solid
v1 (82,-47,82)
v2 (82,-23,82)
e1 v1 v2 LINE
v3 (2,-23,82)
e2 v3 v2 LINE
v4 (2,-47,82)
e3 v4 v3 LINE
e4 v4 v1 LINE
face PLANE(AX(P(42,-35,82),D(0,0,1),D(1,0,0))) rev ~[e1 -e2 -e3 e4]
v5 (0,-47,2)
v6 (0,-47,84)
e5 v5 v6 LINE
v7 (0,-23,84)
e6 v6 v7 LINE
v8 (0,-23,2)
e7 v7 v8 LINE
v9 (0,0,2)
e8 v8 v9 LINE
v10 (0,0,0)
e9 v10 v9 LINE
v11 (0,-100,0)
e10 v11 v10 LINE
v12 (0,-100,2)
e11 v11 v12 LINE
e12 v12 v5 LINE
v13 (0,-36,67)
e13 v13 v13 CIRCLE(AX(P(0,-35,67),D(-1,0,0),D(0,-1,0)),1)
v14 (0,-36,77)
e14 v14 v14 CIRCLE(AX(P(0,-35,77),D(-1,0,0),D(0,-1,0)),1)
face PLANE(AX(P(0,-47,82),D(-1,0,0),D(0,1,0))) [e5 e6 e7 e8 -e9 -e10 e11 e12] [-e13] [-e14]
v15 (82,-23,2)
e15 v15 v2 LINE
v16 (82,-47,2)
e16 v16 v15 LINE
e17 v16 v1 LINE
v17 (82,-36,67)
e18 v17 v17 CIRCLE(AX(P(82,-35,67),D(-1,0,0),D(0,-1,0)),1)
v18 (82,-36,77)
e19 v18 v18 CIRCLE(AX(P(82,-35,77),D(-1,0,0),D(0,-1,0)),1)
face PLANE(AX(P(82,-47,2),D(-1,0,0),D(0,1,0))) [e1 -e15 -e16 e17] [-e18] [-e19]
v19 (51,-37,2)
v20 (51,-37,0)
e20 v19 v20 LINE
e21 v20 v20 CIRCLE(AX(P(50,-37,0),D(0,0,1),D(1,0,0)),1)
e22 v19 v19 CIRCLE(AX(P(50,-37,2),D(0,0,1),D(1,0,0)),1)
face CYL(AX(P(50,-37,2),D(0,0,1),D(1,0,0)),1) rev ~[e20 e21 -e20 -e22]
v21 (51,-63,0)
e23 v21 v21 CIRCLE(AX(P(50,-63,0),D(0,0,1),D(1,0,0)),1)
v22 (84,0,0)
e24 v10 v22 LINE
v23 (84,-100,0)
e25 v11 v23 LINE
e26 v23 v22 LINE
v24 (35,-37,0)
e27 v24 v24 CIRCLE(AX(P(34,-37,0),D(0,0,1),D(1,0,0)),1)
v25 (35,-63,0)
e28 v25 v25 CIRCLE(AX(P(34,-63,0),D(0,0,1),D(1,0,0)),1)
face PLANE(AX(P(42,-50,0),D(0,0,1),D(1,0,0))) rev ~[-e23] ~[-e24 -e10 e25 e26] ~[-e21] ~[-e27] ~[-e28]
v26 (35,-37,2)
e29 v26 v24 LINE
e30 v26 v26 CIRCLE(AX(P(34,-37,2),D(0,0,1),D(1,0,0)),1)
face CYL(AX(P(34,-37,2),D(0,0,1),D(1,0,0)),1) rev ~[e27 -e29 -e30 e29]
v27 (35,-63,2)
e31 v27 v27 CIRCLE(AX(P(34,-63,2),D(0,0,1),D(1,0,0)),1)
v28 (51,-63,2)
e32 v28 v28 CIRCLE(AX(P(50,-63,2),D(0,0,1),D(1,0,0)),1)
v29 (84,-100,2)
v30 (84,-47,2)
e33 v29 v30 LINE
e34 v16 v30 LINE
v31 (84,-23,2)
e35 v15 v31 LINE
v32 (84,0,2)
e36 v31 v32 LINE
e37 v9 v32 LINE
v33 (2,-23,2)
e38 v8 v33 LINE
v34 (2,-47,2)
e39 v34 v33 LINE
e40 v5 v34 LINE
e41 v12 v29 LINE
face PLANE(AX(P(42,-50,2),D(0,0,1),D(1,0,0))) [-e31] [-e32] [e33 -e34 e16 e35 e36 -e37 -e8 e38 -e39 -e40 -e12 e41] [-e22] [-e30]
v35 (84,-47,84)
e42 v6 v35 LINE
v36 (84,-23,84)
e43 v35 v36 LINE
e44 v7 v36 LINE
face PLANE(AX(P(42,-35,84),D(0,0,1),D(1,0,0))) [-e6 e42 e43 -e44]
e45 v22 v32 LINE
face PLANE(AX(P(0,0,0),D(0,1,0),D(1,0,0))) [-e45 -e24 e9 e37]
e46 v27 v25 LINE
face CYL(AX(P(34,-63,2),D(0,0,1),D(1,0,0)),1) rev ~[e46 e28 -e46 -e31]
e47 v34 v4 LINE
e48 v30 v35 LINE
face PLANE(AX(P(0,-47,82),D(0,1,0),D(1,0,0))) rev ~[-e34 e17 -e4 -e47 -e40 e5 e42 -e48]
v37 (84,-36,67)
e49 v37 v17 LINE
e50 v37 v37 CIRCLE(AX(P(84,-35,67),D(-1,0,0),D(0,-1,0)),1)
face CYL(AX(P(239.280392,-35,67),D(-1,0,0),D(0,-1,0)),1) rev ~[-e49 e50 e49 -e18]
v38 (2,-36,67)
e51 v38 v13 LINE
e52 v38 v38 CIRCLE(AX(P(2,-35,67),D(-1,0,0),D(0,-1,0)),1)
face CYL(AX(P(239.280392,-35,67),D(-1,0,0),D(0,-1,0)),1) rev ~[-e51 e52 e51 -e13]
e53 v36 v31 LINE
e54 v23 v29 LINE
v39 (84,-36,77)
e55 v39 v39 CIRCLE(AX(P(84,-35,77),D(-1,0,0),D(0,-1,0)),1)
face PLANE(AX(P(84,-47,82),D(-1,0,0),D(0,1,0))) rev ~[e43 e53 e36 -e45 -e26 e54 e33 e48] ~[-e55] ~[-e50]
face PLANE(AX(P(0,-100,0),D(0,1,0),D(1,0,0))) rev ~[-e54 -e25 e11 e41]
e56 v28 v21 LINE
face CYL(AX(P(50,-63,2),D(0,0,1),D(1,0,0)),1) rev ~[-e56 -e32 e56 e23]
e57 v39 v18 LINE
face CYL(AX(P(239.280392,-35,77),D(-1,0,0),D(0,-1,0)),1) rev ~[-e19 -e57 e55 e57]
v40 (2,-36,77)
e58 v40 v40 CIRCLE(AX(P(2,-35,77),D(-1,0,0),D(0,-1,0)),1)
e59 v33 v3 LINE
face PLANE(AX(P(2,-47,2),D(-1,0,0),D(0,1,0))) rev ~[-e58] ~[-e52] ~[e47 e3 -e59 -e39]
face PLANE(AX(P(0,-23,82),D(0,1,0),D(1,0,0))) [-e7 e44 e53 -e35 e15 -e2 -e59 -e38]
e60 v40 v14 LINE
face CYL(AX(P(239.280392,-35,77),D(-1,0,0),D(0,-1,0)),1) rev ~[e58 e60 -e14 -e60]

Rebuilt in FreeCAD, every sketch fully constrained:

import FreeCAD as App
import Part
import Sketcher

V = App.Vector

doc = App.newDocument("Part")
body = doc.addObject("PartDesign::Body", "Body")

sketch1 = body.newObject("Sketcher::SketchObject", "Sketch")
sketch1.AttachmentSupport = (doc.getObject("XY_Plane"), [""])
sketch1.MapMode = "FlatFace"
sketch1.addGeometry([
    Part.LineSegment(V(0, 0, 0), V(0, -100, 0)),
    Part.LineSegment(V(0, -100, 0), V(84, -100, 0)),
    Part.LineSegment(V(84, -100, 0), V(84, 0, 0)),
    Part.LineSegment(V(84, 0, 0), V(0, 0, 0)),
], False)
sketch1.addConstraint([
    Sketcher.Constraint("Coincident", 0, 2, 1, 1),
    Sketcher.Constraint("Coincident", 1, 2, 2, 1),
    Sketcher.Constraint("Coincident", 2, 2, 3, 1),
    Sketcher.Constraint("Coincident", 3, 2, 0, 1),
    Sketcher.Constraint("Vertical", 0),
    Sketcher.Constraint("Horizontal", 1),
    Sketcher.Constraint("Vertical", 2),
    Sketcher.Constraint("Horizontal", 3),
    Sketcher.Constraint("Coincident", 3, 2, -1, 1),
    Sketcher.Constraint("DistanceX", 1, 1, 1, 2, 84.0),
    Sketcher.Constraint("DistanceY", 0, 2, 0, 1, 100.0),
])
pad1 = body.newObject("PartDesign::Pad", "Pad")
pad1.Profile = sketch1
pad1.Length = 2

sketch2 = body.newObject("Sketcher::SketchObject", "Sketch001")
sketch2.AttachmentSupport = (doc.getObject("XY_Plane"), [""])
sketch2.MapMode = "FlatFace"
sketch2.AttachmentOffset = App.Placement(V(0, 0, 2), App.Rotation())
sketch2.addGeometry([
    Part.LineSegment(V(0, -23, 0), V(0, -47, 0)),
    Part.LineSegment(V(0, -47, 0), V(2, -47, 0)),
    Part.LineSegment(V(2, -47, 0), V(2, -23, 0)),
    Part.LineSegment(V(2, -23, 0), V(0, -23, 0)),
    Part.LineSegment(V(82, -23, 0), V(82, -47, 0)),
    Part.LineSegment(V(82, -47, 0), V(84, -47, 0)),
    Part.LineSegment(V(84, -47, 0), V(84, -23, 0)),
    Part.LineSegment(V(84, -23, 0), V(82, -23, 0)),
], False)
sketch2.addConstraint([
    Sketcher.Constraint("Coincident", 0, 2, 1, 1),
    Sketcher.Constraint("Coincident", 1, 2, 2, 1),
    Sketcher.Constraint("Coincident", 2, 2, 3, 1),
    Sketcher.Constraint("Coincident", 3, 2, 0, 1),
    Sketcher.Constraint("Coincident", 4, 2, 5, 1),
    Sketcher.Constraint("Coincident", 5, 2, 6, 1),
    Sketcher.Constraint("Coincident", 6, 2, 7, 1),
    Sketcher.Constraint("Coincident", 7, 2, 4, 1),
    Sketcher.Constraint("Vertical", 0),
    Sketcher.Constraint("Horizontal", 1),
    Sketcher.Constraint("Vertical", 2),
    Sketcher.Constraint("Horizontal", 3),
    Sketcher.Constraint("Vertical", 4),
    Sketcher.Constraint("Horizontal", 5),
    Sketcher.Constraint("Vertical", 6),
    Sketcher.Constraint("Horizontal", 7),
    Sketcher.Constraint("PointOnObject", 0, 2, -2),
    Sketcher.Constraint("Horizontal", 1, 2, 4, 2),
    Sketcher.Constraint("Horizontal", 3, 2, 6, 2),
    Sketcher.Constraint("Equal", 3, 5),
    Sketcher.Constraint("DistanceX", 1, 1, 1, 2, 2.0),
    Sketcher.Constraint("DistanceY", 0, 2, 0, 1, 24.0),
    Sketcher.Constraint("DistanceY", 0, 2, -1, 1, 47.0),
    Sketcher.Constraint("DistanceX", -1, 1, 4, 2, 82.0),
])
pad2 = body.newObject("PartDesign::Pad", "Pad001")
pad2.Profile = sketch2
pad2.Length = 80

sketch3 = body.newObject("Sketcher::SketchObject", "Sketch002")
sketch3.AttachmentSupport = (doc.getObject("XY_Plane"), [""])
sketch3.MapMode = "FlatFace"
sketch3.AttachmentOffset = App.Placement(V(0, 0, 82), App.Rotation())
sketch3.addGeometry([
    Part.LineSegment(V(0, -23, 0), V(0, -47, 0)),
    Part.LineSegment(V(0, -47, 0), V(84, -47, 0)),
    Part.LineSegment(V(84, -47, 0), V(84, -23, 0)),
    Part.LineSegment(V(84, -23, 0), V(0, -23, 0)),
], False)
sketch3.addConstraint([
    Sketcher.Constraint("Coincident", 0, 2, 1, 1),
    Sketcher.Constraint("Coincident", 1, 2, 2, 1),
    Sketcher.Constraint("Coincident", 2, 2, 3, 1),
    Sketcher.Constraint("Coincident", 3, 2, 0, 1),
    Sketcher.Constraint("Vertical", 0),
    Sketcher.Constraint("Horizontal", 1),
    Sketcher.Constraint("Vertical", 2),
    Sketcher.Constraint("Horizontal", 3),
    Sketcher.Constraint("PointOnObject", 0, 2, -2),
    Sketcher.Constraint("DistanceX", 1, 1, 1, 2, 84.0),
    Sketcher.Constraint("DistanceY", 0, 2, 0, 1, 24.0),
    Sketcher.Constraint("DistanceY", 0, 2, -1, 1, 47.0),
])
pad3 = body.newObject("PartDesign::Pad", "Pad002")
pad3.Profile = sketch3
pad3.Length = 2

sketch4 = body.newObject("Sketcher::SketchObject", "Sketch003")
sketch4.AttachmentSupport = (doc.getObject("XY_Plane"), [""])
sketch4.MapMode = "FlatFace"
sketch4.AttachmentOffset = App.Placement(V(0, 0, 2), App.Rotation())
sketch4.addGeometry([
    Part.Circle(V(34, -63, 0), V(0, 0, 1), 1),
    Part.Circle(V(34, -37, 0), V(0, 0, 1), 1),
    Part.Circle(V(50, -37, 0), V(0, 0, 1), 1),
    Part.Circle(V(50, -63, 0), V(0, 0, 1), 1),
], False)
sketch4.addConstraint([
    Sketcher.Constraint("Equal", 0, 1),
    Sketcher.Constraint("Equal", 1, 2),
    Sketcher.Constraint("Equal", 2, 3),
    Sketcher.Constraint("Horizontal", 1, 3, 2, 3),
    Sketcher.Constraint("Horizontal", 0, 3, 3, 3),
    Sketcher.Constraint("Vertical", 0, 3, 1, 3),
    Sketcher.Constraint("Vertical", 2, 3, 3, 3),
    Sketcher.Constraint("Diameter", 0, 2.0),
    Sketcher.Constraint("DistanceX", -1, 1, 0, 3, 34.0),
    Sketcher.Constraint("DistanceY", 0, 3, -1, 1, 63.0),
    Sketcher.Constraint("DistanceY", 1, 3, -1, 1, 37.0),
    Sketcher.Constraint("DistanceX", -1, 1, 2, 3, 50.0),
])
pocket1 = body.newObject("PartDesign::Pocket", "Pocket")
pocket1.Profile = sketch4
pocket1.Type = "ThroughAll"

sketch5 = body.newObject("Sketcher::SketchObject", "Sketch004")
sketch5.AttachmentSupport = (doc.getObject("YZ_Plane"), [""])
sketch5.MapMode = "FlatFace"
sketch5.AttachmentOffset = App.Placement(V(0, 0, 84), App.Rotation())
sketch5.addGeometry([
    Part.Circle(V(-35, 77, 0), V(0, 0, 1), 1),
    Part.Circle(V(-35, 67, 0), V(0, 0, 1), 1),
], False)
sketch5.addConstraint([
    Sketcher.Constraint("Equal", 0, 1),
    Sketcher.Constraint("Vertical", 0, 3, 1, 3),
    Sketcher.Constraint("Diameter", 0, 2.0),
    Sketcher.Constraint("DistanceX", 0, 3, -1, 1, 35.0),
    Sketcher.Constraint("DistanceY", -1, 1, 0, 3, 77.0),
    Sketcher.Constraint("DistanceY", -1, 1, 1, 3, 67.0),
])
doc.recompute()
hole = body.newObject("PartDesign::Hole", "Hole")
hole.Profile = sketch5
hole.ThreadType = "None"
hole.Diameter = 2
hole.DepthType = "ThroughAll"

doc.recompute()
